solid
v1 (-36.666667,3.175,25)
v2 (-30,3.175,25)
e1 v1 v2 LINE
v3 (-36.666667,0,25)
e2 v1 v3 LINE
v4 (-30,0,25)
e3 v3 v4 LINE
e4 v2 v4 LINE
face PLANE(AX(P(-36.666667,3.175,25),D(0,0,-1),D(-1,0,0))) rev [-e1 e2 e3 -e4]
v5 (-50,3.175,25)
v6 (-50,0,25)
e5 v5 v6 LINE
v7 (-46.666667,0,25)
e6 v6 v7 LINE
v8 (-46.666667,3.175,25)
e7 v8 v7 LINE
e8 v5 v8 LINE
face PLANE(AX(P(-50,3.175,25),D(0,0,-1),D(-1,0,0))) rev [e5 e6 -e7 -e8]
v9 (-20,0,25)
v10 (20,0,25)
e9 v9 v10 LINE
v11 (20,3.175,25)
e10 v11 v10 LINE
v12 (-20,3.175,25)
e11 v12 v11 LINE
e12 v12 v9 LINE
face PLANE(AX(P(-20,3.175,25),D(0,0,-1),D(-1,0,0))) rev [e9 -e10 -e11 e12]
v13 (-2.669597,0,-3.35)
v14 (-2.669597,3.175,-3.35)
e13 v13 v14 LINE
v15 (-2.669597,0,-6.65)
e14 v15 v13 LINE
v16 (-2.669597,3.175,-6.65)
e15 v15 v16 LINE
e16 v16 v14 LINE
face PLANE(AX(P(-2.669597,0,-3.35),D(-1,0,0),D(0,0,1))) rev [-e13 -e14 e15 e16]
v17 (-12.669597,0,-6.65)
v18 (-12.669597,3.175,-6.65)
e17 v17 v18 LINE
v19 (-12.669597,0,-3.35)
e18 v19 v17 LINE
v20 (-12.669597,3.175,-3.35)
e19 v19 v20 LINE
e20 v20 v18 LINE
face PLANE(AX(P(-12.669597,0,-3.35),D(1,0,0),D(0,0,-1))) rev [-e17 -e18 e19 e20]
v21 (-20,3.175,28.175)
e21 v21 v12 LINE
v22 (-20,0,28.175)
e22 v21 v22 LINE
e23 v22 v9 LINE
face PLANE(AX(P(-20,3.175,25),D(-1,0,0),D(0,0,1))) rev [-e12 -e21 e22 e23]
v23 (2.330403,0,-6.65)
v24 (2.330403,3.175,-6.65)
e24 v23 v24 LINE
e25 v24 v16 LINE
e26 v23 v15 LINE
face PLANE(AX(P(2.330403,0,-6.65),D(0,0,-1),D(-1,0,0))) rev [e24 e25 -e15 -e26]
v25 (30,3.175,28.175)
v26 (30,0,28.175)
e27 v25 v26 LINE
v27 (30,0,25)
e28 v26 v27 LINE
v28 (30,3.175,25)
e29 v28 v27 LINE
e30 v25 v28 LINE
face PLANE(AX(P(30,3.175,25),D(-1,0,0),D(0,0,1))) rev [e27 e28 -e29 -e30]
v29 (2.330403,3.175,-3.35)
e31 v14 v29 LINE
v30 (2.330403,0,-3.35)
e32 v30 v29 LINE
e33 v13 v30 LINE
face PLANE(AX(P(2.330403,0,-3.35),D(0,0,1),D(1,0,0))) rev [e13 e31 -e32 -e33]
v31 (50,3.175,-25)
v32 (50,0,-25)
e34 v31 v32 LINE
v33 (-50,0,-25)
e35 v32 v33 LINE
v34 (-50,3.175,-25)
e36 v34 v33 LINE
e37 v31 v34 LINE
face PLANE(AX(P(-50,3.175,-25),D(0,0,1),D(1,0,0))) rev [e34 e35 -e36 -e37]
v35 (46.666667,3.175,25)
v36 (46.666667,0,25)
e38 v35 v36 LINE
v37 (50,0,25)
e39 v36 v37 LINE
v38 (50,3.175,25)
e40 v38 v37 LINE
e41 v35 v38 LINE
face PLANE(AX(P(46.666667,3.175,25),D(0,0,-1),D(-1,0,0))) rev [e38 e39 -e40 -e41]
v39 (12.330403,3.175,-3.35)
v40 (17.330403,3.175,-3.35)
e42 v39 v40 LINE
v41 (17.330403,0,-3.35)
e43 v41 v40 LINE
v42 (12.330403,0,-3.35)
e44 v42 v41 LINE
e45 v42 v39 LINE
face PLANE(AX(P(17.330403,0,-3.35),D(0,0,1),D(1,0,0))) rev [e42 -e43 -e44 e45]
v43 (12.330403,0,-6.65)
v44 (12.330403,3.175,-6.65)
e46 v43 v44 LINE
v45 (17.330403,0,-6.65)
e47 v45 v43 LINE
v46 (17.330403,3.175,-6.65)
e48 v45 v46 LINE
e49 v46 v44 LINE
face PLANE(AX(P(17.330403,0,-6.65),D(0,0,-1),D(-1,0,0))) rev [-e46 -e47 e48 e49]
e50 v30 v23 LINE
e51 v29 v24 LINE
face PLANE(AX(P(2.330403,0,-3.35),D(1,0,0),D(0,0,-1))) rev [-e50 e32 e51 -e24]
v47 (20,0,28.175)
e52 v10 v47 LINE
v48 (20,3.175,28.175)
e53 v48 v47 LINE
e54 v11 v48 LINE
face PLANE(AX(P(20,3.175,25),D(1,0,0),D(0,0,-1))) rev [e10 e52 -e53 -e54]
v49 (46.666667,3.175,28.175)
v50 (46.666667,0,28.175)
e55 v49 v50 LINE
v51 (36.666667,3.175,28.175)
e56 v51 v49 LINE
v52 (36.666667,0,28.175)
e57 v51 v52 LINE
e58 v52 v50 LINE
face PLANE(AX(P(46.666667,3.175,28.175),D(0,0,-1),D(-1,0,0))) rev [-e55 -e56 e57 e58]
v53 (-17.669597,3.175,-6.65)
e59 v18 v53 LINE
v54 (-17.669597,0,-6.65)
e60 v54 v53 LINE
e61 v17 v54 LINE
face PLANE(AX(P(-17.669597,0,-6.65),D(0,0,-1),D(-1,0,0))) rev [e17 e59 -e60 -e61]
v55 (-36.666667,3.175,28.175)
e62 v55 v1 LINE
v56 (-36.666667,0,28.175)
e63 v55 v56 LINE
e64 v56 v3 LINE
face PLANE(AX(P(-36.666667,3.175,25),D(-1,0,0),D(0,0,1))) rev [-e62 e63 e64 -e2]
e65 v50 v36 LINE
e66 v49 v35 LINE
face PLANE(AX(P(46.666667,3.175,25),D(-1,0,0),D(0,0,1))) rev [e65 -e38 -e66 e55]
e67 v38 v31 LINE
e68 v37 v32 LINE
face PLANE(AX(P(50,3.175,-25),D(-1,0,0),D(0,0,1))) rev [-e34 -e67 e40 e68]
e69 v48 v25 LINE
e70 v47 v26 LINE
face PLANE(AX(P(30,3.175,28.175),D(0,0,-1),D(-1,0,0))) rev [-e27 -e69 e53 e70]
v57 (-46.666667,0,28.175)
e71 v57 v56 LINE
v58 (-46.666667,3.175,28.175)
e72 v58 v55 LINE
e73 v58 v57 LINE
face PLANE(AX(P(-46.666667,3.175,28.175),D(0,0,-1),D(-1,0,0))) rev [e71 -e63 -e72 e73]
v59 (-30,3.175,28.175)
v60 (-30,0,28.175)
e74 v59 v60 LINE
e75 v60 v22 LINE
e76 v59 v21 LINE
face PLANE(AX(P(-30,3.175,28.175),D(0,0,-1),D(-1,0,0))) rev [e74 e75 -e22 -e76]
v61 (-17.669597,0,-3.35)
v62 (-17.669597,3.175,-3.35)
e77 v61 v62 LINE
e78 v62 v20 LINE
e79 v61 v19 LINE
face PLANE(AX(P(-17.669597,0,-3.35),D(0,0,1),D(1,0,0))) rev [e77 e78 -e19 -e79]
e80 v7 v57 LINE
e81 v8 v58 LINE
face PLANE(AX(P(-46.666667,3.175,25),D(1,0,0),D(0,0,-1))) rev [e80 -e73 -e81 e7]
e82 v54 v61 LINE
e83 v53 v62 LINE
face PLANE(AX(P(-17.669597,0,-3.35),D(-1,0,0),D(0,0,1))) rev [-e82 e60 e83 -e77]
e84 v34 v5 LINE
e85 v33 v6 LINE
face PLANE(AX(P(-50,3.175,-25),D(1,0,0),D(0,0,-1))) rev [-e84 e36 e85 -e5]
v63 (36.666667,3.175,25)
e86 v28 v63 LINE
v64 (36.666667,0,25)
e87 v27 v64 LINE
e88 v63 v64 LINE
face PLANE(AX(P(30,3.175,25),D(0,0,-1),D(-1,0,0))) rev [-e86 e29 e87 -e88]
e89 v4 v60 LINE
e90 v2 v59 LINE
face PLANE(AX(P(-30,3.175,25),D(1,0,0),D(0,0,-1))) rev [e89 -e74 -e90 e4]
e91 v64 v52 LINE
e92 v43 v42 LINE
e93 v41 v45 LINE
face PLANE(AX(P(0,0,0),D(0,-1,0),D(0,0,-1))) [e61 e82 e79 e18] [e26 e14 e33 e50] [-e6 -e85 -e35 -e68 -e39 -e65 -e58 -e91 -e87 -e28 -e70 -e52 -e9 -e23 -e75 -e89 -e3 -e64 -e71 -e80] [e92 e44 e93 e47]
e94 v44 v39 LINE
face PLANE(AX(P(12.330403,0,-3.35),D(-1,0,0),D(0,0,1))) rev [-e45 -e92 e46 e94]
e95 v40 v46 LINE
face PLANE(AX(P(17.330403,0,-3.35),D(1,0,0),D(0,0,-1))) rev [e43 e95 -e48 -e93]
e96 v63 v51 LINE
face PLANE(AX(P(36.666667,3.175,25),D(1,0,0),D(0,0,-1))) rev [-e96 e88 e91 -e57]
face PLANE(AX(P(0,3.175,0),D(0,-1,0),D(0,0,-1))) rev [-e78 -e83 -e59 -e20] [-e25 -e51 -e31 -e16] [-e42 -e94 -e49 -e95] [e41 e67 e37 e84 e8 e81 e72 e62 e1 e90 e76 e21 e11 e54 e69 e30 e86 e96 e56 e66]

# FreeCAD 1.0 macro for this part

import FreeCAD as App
import Part
import Sketcher
Q = App.Units.Quantity


def add_polygon(sketch, points):
    """Adds a closed chain of lines whose ends are joined by coincident constraints."""
    first, n = sketch.GeometryCount, len(points)
    for a, b in zip(points, points[1:] + points[:1]):
        sketch.addGeometry(Part.LineSegment(App.Vector(*a, 0), App.Vector(*b, 0)), False)
    for i in range(n):
        sketch.addConstraint(Sketcher.Constraint("Coincident", first + i, 2, first + (i + 1) % n, 1))

doc = App.newDocument("Part")
params = doc.addObject("Spreadsheet::Sheet", "Params")
for row, (alias, value) in enumerate([
    ("sketch1_width", "100 mm"),
    ("sketch1_width2", "10 mm"),
    ("sketch1_width3", "40 mm"),
    ("sketch1_height", "50 mm"),
    ("pad1_length", "3.175 mm"),
    ("sketch2_width", "5 mm"),
    ("sketch2_height", "3.3 mm"),
    ("pocket1_length", "3.175 mm"),
], start=1):
    params.set(f"A{row}", alias)
    params.set(f"B{row}", "=" + value)
    params.setAlias(f"B{row}", alias)

body = doc.addObject("PartDesign::Body", "Body")

sketch1 = body.newObject("Sketcher::SketchObject", "Sketch")
sketch1.AttachmentSupport = (doc.getObject("XZ_Plane"), [""])
sketch1.MapMode = "FlatFace"
add_polygon(sketch1, [(50, -25), (-50, -25), (-50, 25), (-46.7, 25), (-46.7, 28.2), (-36.7, 28.2), (-36.7, 25), (-30, 25), (-30, 28.2), (-20, 28.2), (-20, 25), (20, 25), (20, 28.2), (30, 28.2), (30, 25), (36.7, 25), (36.7, 28.2), (46.7, 28.2), (46.7, 25), (50, 25)])
sketch1.addConstraint([
    Sketcher.Constraint("Horizontal", 0),
    Sketcher.Constraint("Vertical", 1),
    Sketcher.Constraint("Horizontal", 2),
    Sketcher.Constraint("Vertical", 3),
    Sketcher.Constraint("Horizontal", 4),
    Sketcher.Constraint("Vertical", 5),
    Sketcher.Constraint("Horizontal", 6),
    Sketcher.Constraint("Vertical", 7),
    Sketcher.Constraint("Horizontal", 8),
    Sketcher.Constraint("Vertical", 9),
    Sketcher.Constraint("Horizontal", 10),
    Sketcher.Constraint("Vertical", 11),
    Sketcher.Constraint("Horizontal", 12),
    Sketcher.Constraint("Vertical", 13),
    Sketcher.Constraint("Horizontal", 14),
    Sketcher.Constraint("Vertical", 15),
    Sketcher.Constraint("Horizontal", 16),
    Sketcher.Constraint("Vertical", 17),
    Sketcher.Constraint("Horizontal", 18),
    Sketcher.Constraint("Vertical", 19),
    Sketcher.Constraint("Symmetric", 0, 2, 18, 2, -1, 1),
    Sketcher.Constraint("Symmetric", 8, 2, 11, 2, -2),
    Sketcher.Constraint("Symmetric", 6, 2, 13, 2, -2),
    Sketcher.Constraint("Symmetric", 4, 2, 15, 2, -2),
    Sketcher.Constraint("Symmetric", 2, 2, 17, 2, -2),
    Sketcher.Constraint("Horizontal", 2, 2, 5, 2),
    Sketcher.Constraint("Horizontal", 4, 2, 7, 2),
    Sketcher.Constraint("Horizontal", 6, 2, 9, 2),
    Sketcher.Constraint("Equal", 4, 8),
    Sketcher.Constraint("DistanceX", 0, 2, 0, 1, Q("100 mm")),
    Sketcher.Constraint("DistanceX", 4, 1, 4, 2, Q("10 mm")),
    Sketcher.Constraint("DistanceX", 10, 1, 10, 2, Q("40 mm")),
    Sketcher.Constraint("DistanceY", 1, 1, 1, 2, Q("50 mm")),
    Sketcher.Constraint("DistanceY", 3, 1, 3, 2, Q("3.175 mm")),
    Sketcher.Constraint("DistanceX", 2, 1, 2, 2, Q("3.333333 mm")),
])
sketch1.setExpression("Constraints[49]", "Params.sketch1_width")
sketch1.setExpression("Constraints[50]", "Params.sketch1_width2")
sketch1.setExpression("Constraints[51]", "Params.sketch1_width3")
sketch1.setExpression("Constraints[52]", "Params.sketch1_height")
pad1 = body.newObject("PartDesign::Pad", "Pad")
pad1.Profile = sketch1
pad1.setExpression("Length", "Params.pad1_length")
pad1.Reversed = True

sketch2 = body.newObject("Sketcher::SketchObject", "Sketch001")
sketch2.AttachmentSupport = (doc.getObject("XZ_Plane"), [""])
sketch2.MapMode = "FlatFace"
sketch2.AttachmentOffset = App.Placement(App.Vector(0, 0, -3.175), App.Rotation())
add_polygon(sketch2, [(-2.7, -6.7), (-2.7, -3.4), (2.3, -3.4), (2.3, -6.7)])
add_polygon(sketch2, [(-17.7, -6.7), (-17.7, -3.4), (-12.7, -3.4), (-12.7, -6.7)])
add_polygon(sketch2, [(12.3, -6.7), (12.3, -3.4), (17.3, -3.4), (17.3, -6.7)])
sketch2.addConstraint([
    Sketcher.Constraint("Vertical", 0),
    Sketcher.Constraint("Horizontal", 1),
    Sketcher.Constraint("Vertical", 2),
    Sketcher.Constraint("Horizontal", 3),
    Sketcher.Constraint("Vertical", 4),
    Sketcher.Constraint("Horizontal", 5),
    Sketcher.Constraint("Vertical", 6),
    Sketcher.Constraint("Horizontal", 7),
    Sketcher.Constraint("Vertical", 8),
    Sketcher.Constraint("Horizontal", 9),
    Sketcher.Constraint("Vertical", 10),
    Sketcher.Constraint("Horizontal", 11),
    Sketcher.Constraint("Horizontal", 1, 2, 4, 2),
    Sketcher.Constraint("Horizontal", 3, 2, 6, 2),
    Sketcher.Constraint("Horizontal", 5, 2, 8, 2),
    Sketcher.Constraint("Horizontal", 7, 2, 10, 2),
    Sketcher.Constraint("Equal", 3, 5),
    Sketcher.Constraint("Equal", 7, 9),
    Sketcher.Constraint("DistanceX", 1, 1, 1, 2, Q("5 mm")),
    Sketcher.Constraint("DistanceY", 0, 1, 0, 2, Q("3.3 mm")),
    Sketcher.Constraint("DistanceX", 4, 2, 0, 2, Q("15 mm")),
    Sketcher.Constraint("DistanceX", 1, 2, 8, 2, Q("10 mm")),
    Sketcher.Constraint("DistanceY", 0, 2, -1, 1, Q("3.35 mm")),
    Sketcher.Constraint("DistanceX", 0, 2, -1, 1, Q("2.669597 mm")),
])
sketch2.setExpression("Constraints[30]", "Params.sketch2_width")
sketch2.setExpression("Constraints[31]", "Params.sketch2_height")
pocket1 = body.newObject("PartDesign::Pocket", "Pocket")
pocket1.Profile = sketch2
pocket1.setExpression("Length", "Params.pocket1_length")
pocket1.Reversed = True

doc.recompute()
